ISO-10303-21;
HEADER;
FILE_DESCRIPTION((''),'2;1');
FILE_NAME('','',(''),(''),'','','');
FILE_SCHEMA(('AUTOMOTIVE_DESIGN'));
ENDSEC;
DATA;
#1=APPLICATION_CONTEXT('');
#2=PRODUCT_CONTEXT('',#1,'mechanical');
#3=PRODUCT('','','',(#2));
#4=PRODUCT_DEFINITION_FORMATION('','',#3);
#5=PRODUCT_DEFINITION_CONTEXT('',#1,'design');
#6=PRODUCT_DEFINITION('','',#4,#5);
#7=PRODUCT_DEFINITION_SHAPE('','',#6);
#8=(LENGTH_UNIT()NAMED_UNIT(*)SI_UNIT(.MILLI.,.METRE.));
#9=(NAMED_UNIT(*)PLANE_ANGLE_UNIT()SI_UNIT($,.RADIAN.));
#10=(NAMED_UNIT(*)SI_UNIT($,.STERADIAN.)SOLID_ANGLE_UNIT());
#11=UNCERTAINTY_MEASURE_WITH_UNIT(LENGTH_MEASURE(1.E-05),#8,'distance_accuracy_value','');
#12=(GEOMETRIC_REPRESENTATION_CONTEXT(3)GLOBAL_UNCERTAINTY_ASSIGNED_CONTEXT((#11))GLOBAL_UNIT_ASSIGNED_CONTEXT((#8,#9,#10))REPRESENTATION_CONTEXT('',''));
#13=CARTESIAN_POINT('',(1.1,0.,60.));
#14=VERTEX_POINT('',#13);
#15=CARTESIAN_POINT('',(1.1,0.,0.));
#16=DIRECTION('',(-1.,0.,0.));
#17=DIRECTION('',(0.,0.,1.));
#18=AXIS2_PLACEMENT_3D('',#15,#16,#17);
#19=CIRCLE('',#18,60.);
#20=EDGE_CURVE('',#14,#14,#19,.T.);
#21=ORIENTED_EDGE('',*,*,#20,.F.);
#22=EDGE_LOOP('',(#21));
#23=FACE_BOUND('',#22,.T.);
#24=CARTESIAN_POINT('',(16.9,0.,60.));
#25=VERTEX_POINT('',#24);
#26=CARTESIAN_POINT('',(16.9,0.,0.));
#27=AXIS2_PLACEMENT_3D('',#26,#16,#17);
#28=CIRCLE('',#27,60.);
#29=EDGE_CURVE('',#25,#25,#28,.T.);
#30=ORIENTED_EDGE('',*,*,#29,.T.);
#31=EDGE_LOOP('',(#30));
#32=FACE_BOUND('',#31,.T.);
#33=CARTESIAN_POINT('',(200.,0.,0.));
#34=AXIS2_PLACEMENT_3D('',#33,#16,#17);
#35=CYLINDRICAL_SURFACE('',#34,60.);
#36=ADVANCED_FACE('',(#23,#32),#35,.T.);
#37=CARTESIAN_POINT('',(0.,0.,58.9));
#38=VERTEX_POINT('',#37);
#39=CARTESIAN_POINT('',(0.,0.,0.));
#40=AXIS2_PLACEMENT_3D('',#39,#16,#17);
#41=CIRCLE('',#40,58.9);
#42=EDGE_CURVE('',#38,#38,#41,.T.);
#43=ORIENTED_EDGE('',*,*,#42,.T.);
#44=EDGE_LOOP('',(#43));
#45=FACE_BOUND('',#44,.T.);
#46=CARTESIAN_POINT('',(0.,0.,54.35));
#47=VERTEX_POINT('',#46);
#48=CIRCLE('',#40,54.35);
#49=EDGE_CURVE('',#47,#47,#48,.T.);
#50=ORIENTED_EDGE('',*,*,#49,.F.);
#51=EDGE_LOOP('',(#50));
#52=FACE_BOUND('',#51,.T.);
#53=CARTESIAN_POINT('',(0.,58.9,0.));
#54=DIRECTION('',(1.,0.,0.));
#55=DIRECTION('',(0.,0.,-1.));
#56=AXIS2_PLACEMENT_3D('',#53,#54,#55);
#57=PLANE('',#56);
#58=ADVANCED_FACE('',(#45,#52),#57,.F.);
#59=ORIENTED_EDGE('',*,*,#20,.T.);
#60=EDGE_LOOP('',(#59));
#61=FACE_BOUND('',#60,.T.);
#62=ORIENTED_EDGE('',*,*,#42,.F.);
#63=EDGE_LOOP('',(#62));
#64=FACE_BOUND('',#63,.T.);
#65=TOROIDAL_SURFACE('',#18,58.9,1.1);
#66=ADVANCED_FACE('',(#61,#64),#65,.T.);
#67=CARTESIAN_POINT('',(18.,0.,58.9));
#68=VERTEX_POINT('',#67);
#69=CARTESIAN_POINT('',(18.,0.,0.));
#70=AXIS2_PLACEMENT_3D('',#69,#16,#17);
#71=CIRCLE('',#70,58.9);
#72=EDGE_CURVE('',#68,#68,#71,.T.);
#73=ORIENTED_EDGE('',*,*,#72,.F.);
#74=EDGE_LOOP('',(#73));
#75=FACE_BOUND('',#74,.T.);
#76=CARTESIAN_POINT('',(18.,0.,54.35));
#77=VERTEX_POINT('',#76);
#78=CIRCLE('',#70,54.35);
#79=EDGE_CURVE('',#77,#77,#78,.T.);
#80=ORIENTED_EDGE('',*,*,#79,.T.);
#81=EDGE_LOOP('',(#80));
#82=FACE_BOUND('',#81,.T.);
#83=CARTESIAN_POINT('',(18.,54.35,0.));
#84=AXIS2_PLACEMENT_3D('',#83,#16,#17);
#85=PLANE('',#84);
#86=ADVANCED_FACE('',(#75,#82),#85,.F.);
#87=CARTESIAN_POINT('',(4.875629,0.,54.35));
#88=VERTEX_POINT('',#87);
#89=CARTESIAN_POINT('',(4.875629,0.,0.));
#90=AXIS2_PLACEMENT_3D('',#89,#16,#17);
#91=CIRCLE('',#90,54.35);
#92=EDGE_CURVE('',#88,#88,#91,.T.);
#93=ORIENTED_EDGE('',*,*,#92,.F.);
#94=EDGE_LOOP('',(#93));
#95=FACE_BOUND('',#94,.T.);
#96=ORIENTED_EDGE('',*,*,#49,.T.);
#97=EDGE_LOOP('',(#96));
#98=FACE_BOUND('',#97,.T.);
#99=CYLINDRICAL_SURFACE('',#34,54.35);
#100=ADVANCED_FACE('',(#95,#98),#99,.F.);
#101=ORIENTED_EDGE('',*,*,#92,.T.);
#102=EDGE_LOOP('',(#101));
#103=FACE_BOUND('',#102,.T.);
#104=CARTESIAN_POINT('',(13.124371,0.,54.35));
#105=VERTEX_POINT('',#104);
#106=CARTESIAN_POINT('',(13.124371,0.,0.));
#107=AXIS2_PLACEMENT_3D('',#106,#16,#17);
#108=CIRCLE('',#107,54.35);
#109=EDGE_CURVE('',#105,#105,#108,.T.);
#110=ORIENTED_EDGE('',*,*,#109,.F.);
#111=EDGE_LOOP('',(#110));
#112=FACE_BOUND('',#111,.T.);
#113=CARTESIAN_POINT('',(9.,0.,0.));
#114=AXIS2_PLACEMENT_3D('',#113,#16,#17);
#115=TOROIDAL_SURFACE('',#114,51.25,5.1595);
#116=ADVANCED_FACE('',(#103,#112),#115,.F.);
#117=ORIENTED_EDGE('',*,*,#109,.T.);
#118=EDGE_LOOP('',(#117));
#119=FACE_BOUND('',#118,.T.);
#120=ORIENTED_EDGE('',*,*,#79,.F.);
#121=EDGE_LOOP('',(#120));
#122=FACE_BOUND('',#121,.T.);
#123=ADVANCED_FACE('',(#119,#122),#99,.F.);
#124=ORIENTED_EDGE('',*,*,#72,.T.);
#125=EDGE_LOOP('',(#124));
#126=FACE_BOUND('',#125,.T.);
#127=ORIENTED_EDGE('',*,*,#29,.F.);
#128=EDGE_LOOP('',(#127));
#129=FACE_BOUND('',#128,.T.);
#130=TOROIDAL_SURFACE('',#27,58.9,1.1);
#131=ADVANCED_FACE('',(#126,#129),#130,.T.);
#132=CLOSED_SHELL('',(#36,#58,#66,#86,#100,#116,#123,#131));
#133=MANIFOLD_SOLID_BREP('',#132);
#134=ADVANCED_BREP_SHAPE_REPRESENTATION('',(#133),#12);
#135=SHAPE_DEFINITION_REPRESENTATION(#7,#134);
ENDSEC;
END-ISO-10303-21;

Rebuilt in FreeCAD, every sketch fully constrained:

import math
import FreeCAD as App
import Part
import Sketcher
from FreeCAD import Vector

doc = App.newDocument("Part")
body = doc.addObject("PartDesign::Body", "Body")

# Sketch on XY plane
sketch1 = doc.addObject("Sketcher::SketchObject", "Sketch")
body.addObject(sketch1)
sketch1.AttachmentSupport = (doc.XY_Plane, [""])
sketch1.MapMode = "FlatFace"
sketch1.addGeometry([
    Part.LineSegment(Vector(0, 58.9, 0), Vector(0, 54.4, 0)),  # 0
    Part.LineSegment(Vector(0, 54.4, 0), Vector(4.9, 54.4, 0)),  # 1
    Part.ArcOfCircle(Part.Circle(Vector(9, 51.2, 0), Vector(0, 0, 1), 5.2), math.radians(37), math.radians(143)),  # 2
    Part.LineSegment(Vector(13.1, 54.4, 0), Vector(18, 54.4, 0)),  # 3
    Part.LineSegment(Vector(18, 54.4, 0), Vector(18, 58.9, 0)),  # 4
    Part.ArcOfCircle(Part.Circle(Vector(16.9, 58.9, 0), Vector(0, 0, 1), 1.1), math.radians(0), math.radians(90)),  # 5
    Part.LineSegment(Vector(16.9, 60, 0), Vector(1.1, 60, 0)),  # 6
    Part.ArcOfCircle(Part.Circle(Vector(1.1, 58.9, 0), Vector(0, 0, 1), 1.1), math.radians(90), math.radians(180)),  # 7
], False)
sketch1.addConstraint([
    Sketcher.Constraint("Coincident", 0, 2, 1, 1),
    Sketcher.Constraint("Coincident", 1, 2, 2, 2),
    Sketcher.Constraint("Coincident", 2, 1, 3, 1),
    Sketcher.Constraint("Coincident", 3, 2, 4, 1),
    Sketcher.Constraint("Tangent", 4, 2, 5, 1),
    Sketcher.Constraint("Tangent", 5, 2, 6, 1),
    Sketcher.Constraint("Tangent", 6, 2, 7, 1),
    Sketcher.Constraint("Tangent", 7, 2, 0, 1),
    Sketcher.Constraint("Vertical", 0),
    Sketcher.Constraint("Horizontal", 1),
    Sketcher.Constraint("Horizontal", 3),
    Sketcher.Constraint("Vertical", 4),
    Sketcher.Constraint("Horizontal", 6),
    Sketcher.Constraint("Equal", 5, 7),
    Sketcher.Constraint("PointOnObject", 0, 2, -2),
    Sketcher.Constraint("Horizontal", 1, 2, 2, 1),
    Sketcher.Constraint("Equal", 1, 3),
    Sketcher.Constraint("Radius", 5, 1.1),
    Sketcher.Constraint("DistanceX", 6, 2, 6, 1, 15.8),
    Sketcher.Constraint("DistanceY", -1, 1, 5, 2, 60.0),
    Sketcher.Constraint("DistanceY", 0, 2, 0, 1, 4.55),
    Sketcher.Constraint("Radius", 2, 5.1595),
    Sketcher.Constraint("DistanceY", 2, 3, 0, 2, 3.1),
])
revolution = doc.addObject("PartDesign::Revolution", "Revolution")
body.addObject(revolution)
revolution.Profile = sketch1
revolution.ReferenceAxis = (sketch1, ["H_Axis"])
revolution.Angle = 360

doc.recompute()
